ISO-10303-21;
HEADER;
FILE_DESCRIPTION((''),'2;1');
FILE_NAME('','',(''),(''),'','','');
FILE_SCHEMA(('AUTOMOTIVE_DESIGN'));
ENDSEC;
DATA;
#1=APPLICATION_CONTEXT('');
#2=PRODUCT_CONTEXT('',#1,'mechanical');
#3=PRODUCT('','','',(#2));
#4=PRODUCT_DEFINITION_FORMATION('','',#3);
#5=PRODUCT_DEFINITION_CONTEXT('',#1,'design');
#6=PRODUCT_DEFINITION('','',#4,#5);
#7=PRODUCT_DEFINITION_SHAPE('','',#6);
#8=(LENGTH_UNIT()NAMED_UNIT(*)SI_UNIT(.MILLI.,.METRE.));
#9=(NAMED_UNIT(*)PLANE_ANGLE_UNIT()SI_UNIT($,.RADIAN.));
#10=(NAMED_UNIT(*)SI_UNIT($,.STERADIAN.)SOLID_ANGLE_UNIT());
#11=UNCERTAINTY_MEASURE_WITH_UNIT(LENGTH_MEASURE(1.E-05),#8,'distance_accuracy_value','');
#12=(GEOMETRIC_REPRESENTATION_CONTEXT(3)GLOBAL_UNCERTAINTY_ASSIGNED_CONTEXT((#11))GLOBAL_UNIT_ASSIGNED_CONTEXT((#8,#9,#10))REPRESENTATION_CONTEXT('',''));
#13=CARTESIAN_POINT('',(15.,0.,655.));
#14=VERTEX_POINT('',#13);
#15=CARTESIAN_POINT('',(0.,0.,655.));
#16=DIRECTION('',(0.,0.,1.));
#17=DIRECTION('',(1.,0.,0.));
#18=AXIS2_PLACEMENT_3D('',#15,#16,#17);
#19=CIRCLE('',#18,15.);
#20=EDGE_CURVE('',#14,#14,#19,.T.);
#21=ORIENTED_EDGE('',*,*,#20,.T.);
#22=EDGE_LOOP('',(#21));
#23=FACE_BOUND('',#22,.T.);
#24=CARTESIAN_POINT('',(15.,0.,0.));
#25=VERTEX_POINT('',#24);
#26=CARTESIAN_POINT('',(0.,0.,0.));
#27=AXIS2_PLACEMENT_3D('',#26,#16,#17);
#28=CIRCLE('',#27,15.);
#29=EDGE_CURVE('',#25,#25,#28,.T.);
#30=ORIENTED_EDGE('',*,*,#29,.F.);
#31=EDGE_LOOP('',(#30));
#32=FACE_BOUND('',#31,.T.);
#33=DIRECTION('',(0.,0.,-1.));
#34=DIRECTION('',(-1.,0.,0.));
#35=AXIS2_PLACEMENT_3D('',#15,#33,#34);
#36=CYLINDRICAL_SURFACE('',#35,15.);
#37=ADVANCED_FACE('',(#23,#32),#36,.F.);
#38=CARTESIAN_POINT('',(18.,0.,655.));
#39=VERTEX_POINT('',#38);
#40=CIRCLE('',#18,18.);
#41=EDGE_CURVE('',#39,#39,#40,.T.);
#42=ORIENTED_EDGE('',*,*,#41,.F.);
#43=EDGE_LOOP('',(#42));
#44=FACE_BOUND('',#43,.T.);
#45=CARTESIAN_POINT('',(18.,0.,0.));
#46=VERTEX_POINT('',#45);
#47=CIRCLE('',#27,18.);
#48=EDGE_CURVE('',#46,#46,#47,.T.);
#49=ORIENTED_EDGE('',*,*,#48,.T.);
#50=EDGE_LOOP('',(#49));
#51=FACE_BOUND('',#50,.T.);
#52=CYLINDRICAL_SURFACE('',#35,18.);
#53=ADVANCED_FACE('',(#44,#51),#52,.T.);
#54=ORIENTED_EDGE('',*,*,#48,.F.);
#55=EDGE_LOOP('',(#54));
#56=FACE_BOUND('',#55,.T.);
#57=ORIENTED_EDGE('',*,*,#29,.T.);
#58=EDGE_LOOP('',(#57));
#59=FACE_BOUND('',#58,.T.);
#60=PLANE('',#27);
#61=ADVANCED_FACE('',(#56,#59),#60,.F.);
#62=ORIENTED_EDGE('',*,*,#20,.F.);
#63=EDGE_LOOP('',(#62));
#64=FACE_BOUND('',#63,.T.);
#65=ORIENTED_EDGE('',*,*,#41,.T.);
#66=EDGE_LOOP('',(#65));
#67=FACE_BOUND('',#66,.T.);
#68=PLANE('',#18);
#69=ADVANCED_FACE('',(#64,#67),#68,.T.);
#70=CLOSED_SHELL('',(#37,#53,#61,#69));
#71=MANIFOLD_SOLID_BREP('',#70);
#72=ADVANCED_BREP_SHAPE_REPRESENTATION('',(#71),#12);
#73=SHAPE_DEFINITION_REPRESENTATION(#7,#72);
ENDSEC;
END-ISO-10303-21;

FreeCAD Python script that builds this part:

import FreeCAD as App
import Part
import Sketcher
from FreeCAD import Vector
Q = App.Units.Quantity

doc = App.newDocument("Part")
body = doc.addObject("PartDesign::Body", "Body")

sketch1 = body.newObject("Sketcher::SketchObject", "Sketch")
sketch1.AttachmentSupport = (doc.getObject("XY_Plane"), [""])
sketch1.MapMode = "FlatFace"
sketch1.addGeometry([
    Part.Circle(Vector(0, 0, 0), Vector(0, 0, 1), 18),
    Part.Circle(Vector(0, 0, 0), Vector(0, 0, 1), 15),
], False)
sketch1.addConstraint([
    Sketcher.Constraint("Coincident", 0, 3, -1, 1),
    Sketcher.Constraint("Coincident", 1, 3, -1, 1),
    Sketcher.Constraint("Diameter", 0, Q("36 mm")),
    Sketcher.Constraint("Diameter", 1, Q("30 mm")),
])
pad1 = body.newObject("PartDesign::Pad", "Pad")
pad1.Profile = sketch1
pad1.Length = 655

doc.recompute()
